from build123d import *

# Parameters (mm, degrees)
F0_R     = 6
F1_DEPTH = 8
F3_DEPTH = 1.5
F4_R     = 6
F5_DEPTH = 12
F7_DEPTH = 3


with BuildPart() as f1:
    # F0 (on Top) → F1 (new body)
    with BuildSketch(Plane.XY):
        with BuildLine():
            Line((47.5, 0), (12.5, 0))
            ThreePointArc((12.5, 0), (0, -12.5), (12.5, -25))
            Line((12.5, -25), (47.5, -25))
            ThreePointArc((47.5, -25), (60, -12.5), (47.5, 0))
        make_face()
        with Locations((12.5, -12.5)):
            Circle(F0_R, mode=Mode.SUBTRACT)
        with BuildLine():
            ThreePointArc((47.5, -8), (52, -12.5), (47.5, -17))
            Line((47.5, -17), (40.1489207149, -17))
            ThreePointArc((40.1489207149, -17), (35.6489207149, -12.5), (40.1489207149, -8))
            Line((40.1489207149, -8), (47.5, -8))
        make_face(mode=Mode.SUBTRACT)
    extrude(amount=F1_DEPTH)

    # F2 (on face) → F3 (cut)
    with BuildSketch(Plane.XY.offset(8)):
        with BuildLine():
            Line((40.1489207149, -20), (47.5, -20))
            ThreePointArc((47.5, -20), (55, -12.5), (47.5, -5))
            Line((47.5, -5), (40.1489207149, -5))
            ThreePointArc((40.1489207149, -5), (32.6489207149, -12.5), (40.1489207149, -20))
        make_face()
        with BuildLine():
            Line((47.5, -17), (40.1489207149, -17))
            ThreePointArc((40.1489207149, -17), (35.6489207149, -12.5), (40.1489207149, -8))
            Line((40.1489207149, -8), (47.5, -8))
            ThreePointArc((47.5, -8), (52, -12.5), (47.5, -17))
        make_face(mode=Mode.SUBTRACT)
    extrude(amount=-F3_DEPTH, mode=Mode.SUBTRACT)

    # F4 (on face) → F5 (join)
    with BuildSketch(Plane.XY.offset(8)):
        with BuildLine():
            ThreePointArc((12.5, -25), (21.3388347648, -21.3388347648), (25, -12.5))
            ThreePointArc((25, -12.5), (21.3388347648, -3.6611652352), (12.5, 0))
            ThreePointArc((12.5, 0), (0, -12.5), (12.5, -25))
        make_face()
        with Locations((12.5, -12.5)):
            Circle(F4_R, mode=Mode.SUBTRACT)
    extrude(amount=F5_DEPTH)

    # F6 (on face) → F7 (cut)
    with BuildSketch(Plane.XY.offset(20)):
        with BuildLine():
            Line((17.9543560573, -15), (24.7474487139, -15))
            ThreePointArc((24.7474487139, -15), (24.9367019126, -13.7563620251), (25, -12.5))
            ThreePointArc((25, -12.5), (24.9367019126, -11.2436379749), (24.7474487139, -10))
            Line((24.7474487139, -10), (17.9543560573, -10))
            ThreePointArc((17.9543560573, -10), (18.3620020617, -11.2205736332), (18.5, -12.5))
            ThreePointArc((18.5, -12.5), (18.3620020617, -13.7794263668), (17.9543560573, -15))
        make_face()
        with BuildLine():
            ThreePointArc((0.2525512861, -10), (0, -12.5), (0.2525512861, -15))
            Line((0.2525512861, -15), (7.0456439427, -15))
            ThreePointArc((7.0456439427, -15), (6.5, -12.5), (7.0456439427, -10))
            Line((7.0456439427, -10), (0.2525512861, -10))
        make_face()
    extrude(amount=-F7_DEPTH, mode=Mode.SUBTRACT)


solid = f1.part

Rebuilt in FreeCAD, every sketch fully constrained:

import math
import FreeCAD as App
import Part
import Sketcher
from FreeCAD import Vector
Q = App.Units.Quantity

doc = App.newDocument("Part")
body = doc.addObject("PartDesign::Body", "Body")

sketch1 = body.newObject("Sketcher::SketchObject", "Sketch")
sketch1.AttachmentSupport = (doc.getObject("XY_Plane"), [""])
sketch1.MapMode = "FlatFace"
sketch1.addGeometry(Part.LineSegment(Vector(47.5, 0, 0), Vector(12.5, 0, 0)), False)
sketch1.addGeometry(Part.ArcOfCircle(Part.Circle(Vector(12.5, -12.5, 0), Vector(0, 0, 1), 12.5), math.radians(90), math.radians(270)), False)
sketch1.addGeometry(Part.LineSegment(Vector(12.5, -25, 0), Vector(47.5, -25, 0)), False)
sketch1.addGeometry(Part.ArcOfCircle(Part.Circle(Vector(47.5, -12.5, 0), Vector(0, 0, 1), 12.5), math.radians(-90), math.radians(90)), False)
sketch1.addGeometry(Part.Circle(Vector(12.5, -12.5, 0), Vector(0, 0, 1), 6), False)
sketch1.addGeometry(Part.LineSegment(Vector(40.1, -8, 0), Vector(47.5, -8, 0)), False)
sketch1.addGeometry(Part.ArcOfCircle(Part.Circle(Vector(47.5, -12.5, 0), Vector(0, 0, 1), 4.5), math.radians(-90), math.radians(90)), False)
sketch1.addGeometry(Part.LineSegment(Vector(47.5, -17, 0), Vector(40.1, -17, 0)), False)
sketch1.addGeometry(Part.ArcOfCircle(Part.Circle(Vector(40.1, -12.5, 0), Vector(0, 0, 1), 4.5), math.radians(90), math.radians(270)), False)
sketch1.addConstraint(Sketcher.Constraint("Tangent", 0, 2, 1, 1))
sketch1.addConstraint(Sketcher.Constraint("Tangent", 1, 2, 2, 1))
sketch1.addConstraint(Sketcher.Constraint("Tangent", 2, 2, 3, 1))
sketch1.addConstraint(Sketcher.Constraint("Tangent", 3, 2, 0, 1))
sketch1.addConstraint(Sketcher.Constraint("Tangent", 5, 2, 6, 2))
sketch1.addConstraint(Sketcher.Constraint("Tangent", 6, 1, 7, 1))
sketch1.addConstraint(Sketcher.Constraint("Tangent", 7, 2, 8, 2))
sketch1.addConstraint(Sketcher.Constraint("Tangent", 8, 1, 5, 1))
sketch1.addConstraint(Sketcher.Constraint("Horizontal", 0))
sketch1.addConstraint(Sketcher.Constraint("Horizontal", 2))
sketch1.addConstraint(Sketcher.Constraint("Horizontal", 5))
sketch1.addConstraint(Sketcher.Constraint("Horizontal", 7))
sketch1.addConstraint(Sketcher.Constraint("Coincident", 4, 3, 1, 3))
sketch1.addConstraint(Sketcher.Constraint("Coincident", 6, 3, 3, 3))
sketch1.addConstraint(Sketcher.Constraint("PointOnObject", 0, 2, -1))
sketch1.addConstraint(Sketcher.Constraint("Diameter", 4, Q("12 mm")))
sketch1.addConstraint(Sketcher.Constraint("Radius", 1, Q("12.5 mm")))
sketch1.addConstraint(Sketcher.Constraint("Radius", 6, Q("4.5 mm")))
sketch1.addConstraint(Sketcher.Constraint("DistanceX", 0, 2, 0, 1, Q("35 mm")))
sketch1.addConstraint(Sketcher.Constraint("DistanceX", -1, 1, 1, 3, Q("12.5 mm")))
sketch1.addConstraint(Sketcher.Constraint("DistanceX", 5, 1, 5, 2, Q("7.351079 mm")))
pad1 = body.newObject("PartDesign::Pad", "Pad")
pad1.Profile = sketch1
pad1.Length = 8

sketch2 = body.newObject("Sketcher::SketchObject", "Sketch001")
sketch2.AttachmentSupport = (doc.getObject("XY_Plane"), [""])
sketch2.MapMode = "FlatFace"
sketch2.AttachmentOffset = App.Placement(Vector(0, 0, 8), App.Rotation())
sketch2.addGeometry(Part.LineSegment(Vector(40.1, -20, 0), Vector(47.5, -20, 0)), False)
sketch2.addGeometry(Part.ArcOfCircle(Part.Circle(Vector(47.5, -12.5, 0), Vector(0, 0, 1), 7.5), math.radians(-90), math.radians(90)), False)
sketch2.addGeometry(Part.LineSegment(Vector(47.5, -5, 0), Vector(40.1, -5, 0)), False)
sketch2.addGeometry(Part.ArcOfCircle(Part.Circle(Vector(40.1, -12.5, 0), Vector(0, 0, 1), 7.5), math.radians(90), math.radians(270)), False)
sketch2.addGeometry(Part.ArcOfCircle(Part.Circle(Vector(47.5, -12.5, 0), Vector(0, 0, 1), 4.5), math.radians(-90), math.radians(90)), False)
sketch2.addGeometry(Part.LineSegment(Vector(47.5, -17, 0), Vector(40.1, -17, 0)), False)
sketch2.addGeometry(Part.ArcOfCircle(Part.Circle(Vector(40.1, -12.5, 0), Vector(0, 0, 1), 4.5), math.radians(90), math.radians(270)), False)
sketch2.addGeometry(Part.LineSegment(Vector(40.1, -8, 0), Vector(47.5, -8, 0)), False)
sketch2.addConstraint(Sketcher.Constraint("Tangent", 0, 2, 1, 1))
sketch2.addConstraint(Sketcher.Constraint("Tangent", 1, 2, 2, 1))
sketch2.addConstraint(Sketcher.Constraint("Tangent", 2, 2, 3, 1))
sketch2.addConstraint(Sketcher.Constraint("Tangent", 3, 2, 0, 1))
sketch2.addConstraint(Sketcher.Constraint("Tangent", 4, 1, 5, 1))
sketch2.addConstraint(Sketcher.Constraint("Tangent", 5, 2, 6, 2))
sketch2.addConstraint(Sketcher.Constraint("Tangent", 6, 1, 7, 1))
sketch2.addConstraint(Sketcher.Constraint("Tangent", 7, 2, 4, 2))
sketch2.addConstraint(Sketcher.Constraint("Horizontal", 0))
sketch2.addConstraint(Sketcher.Constraint("Horizontal", 2))
sketch2.addConstraint(Sketcher.Constraint("Horizontal", 5))
sketch2.addConstraint(Sketcher.Constraint("Horizontal", 7))
sketch2.addConstraint(Sketcher.Constraint("Coincident", 4, 3, 1, 3))
sketch2.addConstraint(Sketcher.Constraint("Vertical", 6, 3, 2, 2))
sketch2.addConstraint(Sketcher.Constraint("Radius", 1, Q("7.5 mm")))
sketch2.addConstraint(Sketcher.Constraint("Radius", 4, Q("4.5 mm")))
sketch2.addConstraint(Sketcher.Constraint("DistanceY", 0, 2, -1, 1, Q("20 mm")))
sketch2.addConstraint(Sketcher.Constraint("DistanceX", -1, 1, 1, 3, Q("47.5 mm")))
sketch2.addConstraint(Sketcher.Constraint("DistanceX", 0, 1, 0, 2, Q("7.351079 mm")))
pocket1 = body.newObject("PartDesign::Pocket", "Pocket")
pocket1.Profile = sketch2
pocket1.Length = 1.5

sketch3 = body.newObject("Sketcher::SketchObject", "Sketch002")
sketch3.AttachmentSupport = (doc.getObject("XY_Plane"), [""])
sketch3.MapMode = "FlatFace"
sketch3.AttachmentOffset = App.Placement(Vector(0, 0, 8), App.Rotation())
sketch3.addGeometry(Part.ArcOfCircle(Part.Circle(Vector(12, -12, 0), Vector(0, 0, 1), 12), math.radians(-90), math.radians(0)), False)
sketch3.addGeometry(Part.ArcOfCircle(Part.Circle(Vector(12, -12, 0), Vector(0, 0, 1), 12), math.radians(0), math.radians(90)), False)
sketch3.addGeometry(Part.ArcOfCircle(Part.Circle(Vector(12, -12, 0), Vector(0, 0, 1), 12), math.radians(90), math.radians(270)), False)
sketch3.addGeometry(Part.Circle(Vector(12, -12, 0), Vector(0, 0, 1), 6), False)
sketch3.addConstraint(Sketcher.Constraint("Tangent", 0, 2, 1, 1))
sketch3.addConstraint(Sketcher.Constraint("Tangent", 1, 2, 2, 1))
sketch3.addConstraint(Sketcher.Constraint("Tangent", 2, 2, 0, 1))
sketch3.addConstraint(Sketcher.Constraint("Coincident", 3, 3, 0, 3))
sketch3.addConstraint(Sketcher.Constraint("PointOnObject", 1, 2, -1))
sketch3.addConstraint(Sketcher.Constraint("Horizontal", 3, 3, 0, 2))
sketch3.addConstraint(Sketcher.Constraint("Vertical", 3, 3, 1, 2))
sketch3.addConstraint(Sketcher.Constraint("Vertical", 1, 2, 2, 2))
sketch3.addConstraint(Sketcher.Constraint("Diameter", 3, Q("12 mm")))
sketch3.addConstraint(Sketcher.Constraint("Radius", 0, Q("12.5 mm")))
sketch3.addConstraint(Sketcher.Constraint("DistanceX", -1, 1, 0, 2, Q("25 mm")))
pad2 = body.newObject("PartDesign::Pad", "Pad001")
pad2.Profile = sketch3
pad2.Length = 12

sketch4 = body.newObject("Sketcher::SketchObject", "Sketch003")
sketch4.AttachmentSupport = (doc.getObject("XY_Plane"), [""])
sketch4.MapMode = "FlatFace"
sketch4.AttachmentOffset = App.Placement(Vector(0, 0, 20), App.Rotation())
sketch4.addGeometry(Part.LineSegment(Vector(18, -15, 0), Vector(24.7, -15, 0)), False)
sketch4.addGeometry(Part.ArcOfCircle(Part.Circle(Vector(12.5, -12.5, 0), Vector(0, 0, 1), 12.5), math.radians(-11.54), math.radians(0)), False)
sketch4.addGeometry(Part.ArcOfCircle(Part.Circle(Vector(12.5, -12.5, 0), Vector(0, 0, 1), 12.5), math.radians(0), math.radians(11.54)), False)
sketch4.addGeometry(Part.LineSegment(Vector(24.7, -10, 0), Vector(18, -10, 0)), False)
sketch4.addGeometry(Part.ArcOfCircle(Part.Circle(Vector(12.5, -12.5, 0), Vector(0, 0, 1), 6), math.radians(0), math.radians(25)), False)
sketch4.addGeometry(Part.ArcOfCircle(Part.Circle(Vector(12.5, -12.5, 0), Vector(0, 0, 1), 6), math.radians(-25), math.radians(0)), False)
sketch4.addGeometry(Part.ArcOfCircle(Part.Circle(Vector(12.5, -12.5, 0), Vector(0, 0, 1), 12.5), math.radians(168), math.radians(192)), False)
sketch4.addGeometry(Part.LineSegment(Vector(0.3, -15, 0), Vector(7, -15, 0)), False)
sketch4.addGeometry(Part.ArcOfCircle(Part.Circle(Vector(12.5, -12.5, 0), Vector(0, 0, 1), 6), math.radians(155), math.radians(205)), False)
sketch4.addGeometry(Part.LineSegment(Vector(7, -10, 0), Vector(0.3, -10, 0)), False)
sketch4.addConstraint(Sketcher.Constraint("Coincident", 0, 2, 1, 1))
sketch4.addConstraint(Sketcher.Constraint("Tangent", 1, 2, 2, 1))
sketch4.addConstraint(Sketcher.Constraint("Coincident", 2, 2, 3, 1))
sketch4.addConstraint(Sketcher.Constraint("Coincident", 3, 2, 4, 2))
sketch4.addConstraint(Sketcher.Constraint("Tangent", 4, 1, 5, 2))
sketch4.addConstraint(Sketcher.Constraint("Coincident", 5, 1, 0, 1))
sketch4.addConstraint(Sketcher.Constraint("Coincident", 6, 2, 7, 1))
sketch4.addConstraint(Sketcher.Constraint("Coincident", 7, 2, 8, 2))
sketch4.addConstraint(Sketcher.Constraint("Coincident", 8, 1, 9, 1))
sketch4.addConstraint(Sketcher.Constraint("Coincident", 9, 2, 6, 1))
sketch4.addConstraint(Sketcher.Constraint("Horizontal", 0))
sketch4.addConstraint(Sketcher.Constraint("Horizontal", 3))
sketch4.addConstraint(Sketcher.Constraint("Horizontal", 7))
sketch4.addConstraint(Sketcher.Constraint("Horizontal", 9))
sketch4.addConstraint(Sketcher.Constraint("Coincident", 4, 3, 1, 3))
sketch4.addConstraint(Sketcher.Constraint("Coincident", 6, 3, 1, 3))
sketch4.addConstraint(Sketcher.Constraint("Coincident", 8, 3, 1, 3))
sketch4.addConstraint(Sketcher.Constraint("Equal", 1, 2))
sketch4.addConstraint(Sketcher.Constraint("Equal", 4, 5))
sketch4.addConstraint(Sketcher.Constraint("Equal", 2, 6))
sketch4.addConstraint(Sketcher.Constraint("Equal", 5, 8))
sketch4.addConstraint(Sketcher.Constraint("Horizontal", 8, 3, 1, 2))
sketch4.addConstraint(Sketcher.Constraint("Horizontal", 1, 2, 4, 1))
sketch4.addConstraint(Sketcher.Constraint("Horizontal", 5, 1, 6, 2))
sketch4.addConstraint(Sketcher.Constraint("Horizontal", 3, 2, 8, 1))
sketch4.addConstraint(Sketcher.Constraint("Vertical", 0, 2, 2, 2))
sketch4.addConstraint(Sketcher.Constraint("Radius", 4, Q("6 mm")))
sketch4.addConstraint(Sketcher.Constraint("Radius", 1, Q("12.5 mm")))
sketch4.addConstraint(Sketcher.Constraint("DistanceY", 0, 2, -1, 1, Q("15 mm")))
sketch4.addConstraint(Sketcher.Constraint("DistanceX", -1, 1, 1, 2, Q("25 mm")))
sketch4.addConstraint(Sketcher.Constraint("DistanceY", 2, 2, -1, 1, Q("10 mm")))
pocket2 = body.newObject("PartDesign::Pocket", "Pocket001")
pocket2.Profile = sketch4
pocket2.Length = 3

doc.recompute()
